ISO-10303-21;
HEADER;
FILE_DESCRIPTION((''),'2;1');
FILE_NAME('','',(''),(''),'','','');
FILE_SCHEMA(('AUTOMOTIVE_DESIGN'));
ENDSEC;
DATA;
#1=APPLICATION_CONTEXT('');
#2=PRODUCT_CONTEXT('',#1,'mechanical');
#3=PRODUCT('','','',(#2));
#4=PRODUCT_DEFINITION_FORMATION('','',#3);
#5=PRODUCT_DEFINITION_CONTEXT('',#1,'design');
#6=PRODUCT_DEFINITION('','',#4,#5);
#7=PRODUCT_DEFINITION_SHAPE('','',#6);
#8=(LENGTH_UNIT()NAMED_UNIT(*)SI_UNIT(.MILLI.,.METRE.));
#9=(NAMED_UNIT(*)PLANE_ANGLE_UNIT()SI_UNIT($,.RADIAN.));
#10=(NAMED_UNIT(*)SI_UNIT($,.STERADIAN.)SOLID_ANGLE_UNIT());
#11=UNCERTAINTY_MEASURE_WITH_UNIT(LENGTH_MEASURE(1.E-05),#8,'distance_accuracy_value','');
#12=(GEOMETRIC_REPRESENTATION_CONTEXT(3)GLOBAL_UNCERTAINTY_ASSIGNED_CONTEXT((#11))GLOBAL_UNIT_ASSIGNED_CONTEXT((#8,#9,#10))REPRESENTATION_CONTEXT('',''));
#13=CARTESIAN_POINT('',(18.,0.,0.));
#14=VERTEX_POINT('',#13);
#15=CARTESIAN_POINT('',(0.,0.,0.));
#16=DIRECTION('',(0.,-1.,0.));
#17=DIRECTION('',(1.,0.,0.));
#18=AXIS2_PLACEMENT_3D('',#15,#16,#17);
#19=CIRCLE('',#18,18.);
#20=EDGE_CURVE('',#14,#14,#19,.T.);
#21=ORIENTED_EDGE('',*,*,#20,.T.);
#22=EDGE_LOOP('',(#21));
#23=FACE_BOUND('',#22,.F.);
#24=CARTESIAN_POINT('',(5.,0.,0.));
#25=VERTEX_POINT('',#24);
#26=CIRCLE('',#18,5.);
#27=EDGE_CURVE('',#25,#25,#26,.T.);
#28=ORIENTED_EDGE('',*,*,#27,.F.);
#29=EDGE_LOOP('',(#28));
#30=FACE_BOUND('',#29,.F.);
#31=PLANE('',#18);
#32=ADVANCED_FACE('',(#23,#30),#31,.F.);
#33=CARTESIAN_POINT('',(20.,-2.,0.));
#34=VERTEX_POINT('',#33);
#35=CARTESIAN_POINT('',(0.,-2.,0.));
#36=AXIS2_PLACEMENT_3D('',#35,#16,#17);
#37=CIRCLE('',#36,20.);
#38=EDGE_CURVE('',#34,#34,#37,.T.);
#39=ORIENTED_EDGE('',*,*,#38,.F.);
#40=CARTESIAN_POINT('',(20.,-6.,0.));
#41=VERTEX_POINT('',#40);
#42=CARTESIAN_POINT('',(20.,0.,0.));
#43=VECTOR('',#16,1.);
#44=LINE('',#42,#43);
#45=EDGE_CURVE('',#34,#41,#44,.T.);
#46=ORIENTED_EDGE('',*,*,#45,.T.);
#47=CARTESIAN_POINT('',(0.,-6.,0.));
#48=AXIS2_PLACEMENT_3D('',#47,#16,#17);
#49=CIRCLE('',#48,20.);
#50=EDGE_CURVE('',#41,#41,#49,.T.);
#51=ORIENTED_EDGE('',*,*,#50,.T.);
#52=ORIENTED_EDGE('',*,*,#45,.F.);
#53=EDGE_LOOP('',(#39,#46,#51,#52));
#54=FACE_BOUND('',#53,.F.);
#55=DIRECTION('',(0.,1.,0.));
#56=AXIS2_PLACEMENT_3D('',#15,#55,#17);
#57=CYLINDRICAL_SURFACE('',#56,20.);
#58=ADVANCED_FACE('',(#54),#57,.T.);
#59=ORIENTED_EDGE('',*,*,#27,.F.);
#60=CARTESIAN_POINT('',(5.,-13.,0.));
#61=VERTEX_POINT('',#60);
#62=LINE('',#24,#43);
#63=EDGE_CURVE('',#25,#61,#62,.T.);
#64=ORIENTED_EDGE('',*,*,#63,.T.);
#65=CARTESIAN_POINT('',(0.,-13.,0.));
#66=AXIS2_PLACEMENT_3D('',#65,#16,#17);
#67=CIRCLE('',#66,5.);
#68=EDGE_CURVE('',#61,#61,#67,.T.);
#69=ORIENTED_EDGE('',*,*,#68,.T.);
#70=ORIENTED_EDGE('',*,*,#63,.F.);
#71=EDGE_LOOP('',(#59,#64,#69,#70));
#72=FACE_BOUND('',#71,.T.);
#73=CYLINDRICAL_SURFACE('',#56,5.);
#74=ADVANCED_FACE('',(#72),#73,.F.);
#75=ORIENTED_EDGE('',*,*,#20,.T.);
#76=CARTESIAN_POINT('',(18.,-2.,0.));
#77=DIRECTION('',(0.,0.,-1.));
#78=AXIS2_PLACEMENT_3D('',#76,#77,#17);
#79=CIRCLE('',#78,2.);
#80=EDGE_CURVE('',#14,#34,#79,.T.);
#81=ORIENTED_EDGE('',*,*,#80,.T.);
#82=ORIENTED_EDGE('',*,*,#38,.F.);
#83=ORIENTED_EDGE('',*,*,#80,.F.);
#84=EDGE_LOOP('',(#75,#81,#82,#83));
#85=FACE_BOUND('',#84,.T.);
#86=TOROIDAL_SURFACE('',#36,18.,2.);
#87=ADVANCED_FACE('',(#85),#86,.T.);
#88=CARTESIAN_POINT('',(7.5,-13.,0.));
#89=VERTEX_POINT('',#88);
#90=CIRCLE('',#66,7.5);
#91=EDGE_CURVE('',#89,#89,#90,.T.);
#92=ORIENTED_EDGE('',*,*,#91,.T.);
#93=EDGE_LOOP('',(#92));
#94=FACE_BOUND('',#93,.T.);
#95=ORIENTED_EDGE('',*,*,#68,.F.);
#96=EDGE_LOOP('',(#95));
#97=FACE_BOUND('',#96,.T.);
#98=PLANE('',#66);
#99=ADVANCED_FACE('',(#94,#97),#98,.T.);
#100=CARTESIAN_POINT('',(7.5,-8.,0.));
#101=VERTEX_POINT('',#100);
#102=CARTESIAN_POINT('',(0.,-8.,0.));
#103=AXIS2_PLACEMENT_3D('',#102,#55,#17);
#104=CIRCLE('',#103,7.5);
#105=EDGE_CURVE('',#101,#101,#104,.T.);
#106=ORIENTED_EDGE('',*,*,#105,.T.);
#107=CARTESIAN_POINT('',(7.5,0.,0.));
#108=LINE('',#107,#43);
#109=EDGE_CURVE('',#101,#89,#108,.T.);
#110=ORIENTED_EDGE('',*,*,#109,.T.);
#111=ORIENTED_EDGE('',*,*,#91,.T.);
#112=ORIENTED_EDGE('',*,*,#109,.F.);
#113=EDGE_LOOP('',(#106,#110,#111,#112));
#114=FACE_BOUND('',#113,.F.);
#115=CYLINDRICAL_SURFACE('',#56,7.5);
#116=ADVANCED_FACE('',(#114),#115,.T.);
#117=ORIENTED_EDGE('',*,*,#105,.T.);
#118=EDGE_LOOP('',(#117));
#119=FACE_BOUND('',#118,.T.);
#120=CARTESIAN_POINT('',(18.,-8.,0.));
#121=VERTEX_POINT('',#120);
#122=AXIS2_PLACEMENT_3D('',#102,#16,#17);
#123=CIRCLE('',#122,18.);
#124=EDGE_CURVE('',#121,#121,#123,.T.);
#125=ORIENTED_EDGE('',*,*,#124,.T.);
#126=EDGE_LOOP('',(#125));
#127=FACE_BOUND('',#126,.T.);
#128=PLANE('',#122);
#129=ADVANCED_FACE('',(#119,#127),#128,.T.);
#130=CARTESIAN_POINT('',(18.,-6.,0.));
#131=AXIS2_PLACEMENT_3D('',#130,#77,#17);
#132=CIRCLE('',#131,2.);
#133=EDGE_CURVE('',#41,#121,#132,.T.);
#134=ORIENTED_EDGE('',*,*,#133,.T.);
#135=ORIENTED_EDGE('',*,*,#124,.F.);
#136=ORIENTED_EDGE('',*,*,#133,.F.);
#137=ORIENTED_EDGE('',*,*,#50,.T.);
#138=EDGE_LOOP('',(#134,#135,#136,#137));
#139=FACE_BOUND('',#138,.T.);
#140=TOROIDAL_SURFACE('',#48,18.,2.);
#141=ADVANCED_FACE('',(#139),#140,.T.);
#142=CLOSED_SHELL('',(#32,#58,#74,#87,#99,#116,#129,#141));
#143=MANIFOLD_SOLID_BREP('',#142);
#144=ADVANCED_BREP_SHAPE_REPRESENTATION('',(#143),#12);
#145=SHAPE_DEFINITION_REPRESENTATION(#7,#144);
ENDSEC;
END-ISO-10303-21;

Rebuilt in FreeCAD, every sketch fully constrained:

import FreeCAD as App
import Part
import Sketcher
from FreeCAD import Vector
Q = App.Units.Quantity


def edges_at(feature, points):
    """Names of the edges that pass closest to the given points."""
    edges = feature.Shape.Edges
    near = lambda p: min(range(len(edges)), key=lambda i: edges[i].distToShape(Part.Vertex(*p))[0])
    return sorted({f"Edge{near(p) + 1}" for p in points})

doc = App.newDocument("Part")
body = doc.addObject("PartDesign::Body", "Body")

# Sketch on XZ plane
sketch1 = body.newObject("Sketcher::SketchObject", "Sketch")
sketch1.AttachmentSupport = (doc.getObject("XZ_Plane"), [""])
sketch1.MapMode = "FlatFace"
sketch1.addGeometry(Part.Circle(Vector(0, 0, 0), Vector(0, 0, 1), 20), False)
sketch1.addGeometry(Part.Circle(Vector(0, 0, 0), Vector(0, 0, 1), 5), False)
sketch1.addConstraint(Sketcher.Constraint("Coincident", 0, 3, -1, 1))
sketch1.addConstraint(Sketcher.Constraint("Coincident", 1, 3, -1, 1))
sketch1.addConstraint(Sketcher.Constraint("Diameter", 0, Q("40 mm")))
sketch1.addConstraint(Sketcher.Constraint("Diameter", 1, Q("10 mm")))
pad1 = body.newObject("PartDesign::Pad", "Pad")
pad1.Profile = sketch1
pad1.Length = 8

# Sketch on XZ plane
sketch2 = body.newObject("Sketcher::SketchObject", "Sketch001")
sketch2.AttachmentSupport = (doc.getObject("XZ_Plane"), [""])
sketch2.MapMode = "FlatFace"
sketch2.addGeometry(Part.Circle(Vector(0, 0, 0), Vector(0, 0, 1), 8), False)
sketch2.addGeometry(Part.Circle(Vector(0, 0, 0), Vector(0, 0, 1), 5), False)
sketch2.addConstraint(Sketcher.Constraint("Coincident", 0, 3, -1, 1))
sketch2.addConstraint(Sketcher.Constraint("Coincident", 1, 3, -1, 1))
sketch2.addConstraint(Sketcher.Constraint("Diameter", 0, Q("15 mm")))
sketch2.addConstraint(Sketcher.Constraint("Diameter", 1, Q("10 mm")))
pad2 = body.newObject("PartDesign::Pad", "Pad001")
pad2.Profile = sketch2
pad2.Length = 13
doc.recompute()

fillet = body.newObject("PartDesign::Fillet", "Fillet")
fillet.Base = (pad2, edges_at(pad2, [(-20, 0, 0), (-20, -8, 0)]))
fillet.Radius = 2

doc.recompute()
